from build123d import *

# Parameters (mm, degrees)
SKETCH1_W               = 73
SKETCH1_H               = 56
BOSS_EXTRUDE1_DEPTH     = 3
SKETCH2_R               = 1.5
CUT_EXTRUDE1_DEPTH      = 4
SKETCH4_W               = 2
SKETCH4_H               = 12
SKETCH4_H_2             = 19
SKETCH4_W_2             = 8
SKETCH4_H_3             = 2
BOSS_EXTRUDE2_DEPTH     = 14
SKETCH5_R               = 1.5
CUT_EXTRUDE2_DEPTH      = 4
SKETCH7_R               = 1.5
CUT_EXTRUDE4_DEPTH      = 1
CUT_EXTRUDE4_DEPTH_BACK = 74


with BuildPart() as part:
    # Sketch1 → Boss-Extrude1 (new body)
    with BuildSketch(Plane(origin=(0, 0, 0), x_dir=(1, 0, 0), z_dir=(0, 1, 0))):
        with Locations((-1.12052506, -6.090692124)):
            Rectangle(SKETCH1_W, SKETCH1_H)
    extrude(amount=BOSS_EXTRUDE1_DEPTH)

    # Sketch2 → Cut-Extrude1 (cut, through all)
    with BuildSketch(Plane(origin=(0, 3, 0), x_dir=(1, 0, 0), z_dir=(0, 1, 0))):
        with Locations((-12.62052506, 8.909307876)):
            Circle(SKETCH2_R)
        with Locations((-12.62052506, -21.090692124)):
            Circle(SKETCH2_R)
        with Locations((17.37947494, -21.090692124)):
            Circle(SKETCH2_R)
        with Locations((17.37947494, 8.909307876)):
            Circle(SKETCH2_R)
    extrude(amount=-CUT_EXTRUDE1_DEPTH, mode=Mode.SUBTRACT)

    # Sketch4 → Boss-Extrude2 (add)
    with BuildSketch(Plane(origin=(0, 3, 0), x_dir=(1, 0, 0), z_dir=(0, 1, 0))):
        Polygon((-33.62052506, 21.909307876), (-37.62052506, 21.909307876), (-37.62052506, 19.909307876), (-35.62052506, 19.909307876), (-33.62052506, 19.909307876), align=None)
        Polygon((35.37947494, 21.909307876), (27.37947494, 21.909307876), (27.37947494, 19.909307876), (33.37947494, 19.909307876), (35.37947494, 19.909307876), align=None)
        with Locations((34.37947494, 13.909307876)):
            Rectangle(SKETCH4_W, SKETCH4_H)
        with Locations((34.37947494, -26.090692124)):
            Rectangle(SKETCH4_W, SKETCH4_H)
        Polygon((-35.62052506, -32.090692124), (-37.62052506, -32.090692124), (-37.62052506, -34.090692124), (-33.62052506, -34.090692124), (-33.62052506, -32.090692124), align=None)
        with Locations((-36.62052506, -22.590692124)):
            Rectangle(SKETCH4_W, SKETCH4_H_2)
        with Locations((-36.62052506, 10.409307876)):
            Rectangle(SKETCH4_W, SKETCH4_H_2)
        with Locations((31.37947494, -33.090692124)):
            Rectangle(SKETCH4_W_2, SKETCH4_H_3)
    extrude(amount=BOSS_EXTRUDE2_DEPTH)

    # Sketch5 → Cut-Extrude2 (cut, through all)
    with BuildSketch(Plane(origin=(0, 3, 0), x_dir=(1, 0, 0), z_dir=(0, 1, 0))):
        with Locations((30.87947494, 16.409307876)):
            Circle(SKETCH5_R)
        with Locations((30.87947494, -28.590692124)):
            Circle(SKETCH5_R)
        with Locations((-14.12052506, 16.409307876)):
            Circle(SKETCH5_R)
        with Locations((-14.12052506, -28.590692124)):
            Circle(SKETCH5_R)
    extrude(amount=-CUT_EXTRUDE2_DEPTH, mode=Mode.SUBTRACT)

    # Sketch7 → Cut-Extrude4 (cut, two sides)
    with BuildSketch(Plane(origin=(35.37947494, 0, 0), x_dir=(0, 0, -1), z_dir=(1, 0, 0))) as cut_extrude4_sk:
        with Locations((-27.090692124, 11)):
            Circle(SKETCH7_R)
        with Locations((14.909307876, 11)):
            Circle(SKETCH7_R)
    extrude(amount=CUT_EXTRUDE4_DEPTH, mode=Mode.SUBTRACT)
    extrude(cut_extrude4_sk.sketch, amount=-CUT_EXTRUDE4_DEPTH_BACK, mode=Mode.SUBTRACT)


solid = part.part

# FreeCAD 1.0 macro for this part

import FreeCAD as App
import Part
import Sketcher
from FreeCAD import Vector


def add_polygon(sketch, points):
    """Adds a closed chain of lines whose ends are joined by coincident constraints."""
    first, n = sketch.GeometryCount, len(points)
    for a, b in zip(points, points[1:] + points[:1]):
        sketch.addGeometry(Part.LineSegment(App.Vector(*a, 0), App.Vector(*b, 0)), False)
    for i in range(n):
        sketch.addConstraint(Sketcher.Constraint("Coincident", first + i, 2, first + (i + 1) % n, 1))

doc = App.newDocument("Part")
body = doc.addObject("PartDesign::Body", "Body")

# Sketch on XZ plane
sketch1 = body.newObject("Sketcher::SketchObject", "Sketch")
sketch1.AttachmentSupport = (doc.getObject("XZ_Plane"), [""])
sketch1.MapMode = "FlatFace"
add_polygon(sketch1, [(-38, -22), (-38, 34), (35, 34), (35, -22)])  # lines 0-3
sketch1.addConstraint(Sketcher.Constraint("Vertical", 0))
sketch1.addConstraint(Sketcher.Constraint("Horizontal", 1))
sketch1.addConstraint(Sketcher.Constraint("Vertical", 2))
sketch1.addConstraint(Sketcher.Constraint("Horizontal", 3))
sketch1.addConstraint(Sketcher.Constraint("DistanceX", 1, 1, 1, 2, 73.0))
sketch1.addConstraint(Sketcher.Constraint("DistanceY", 0, 1, 0, 2, 56.0))
sketch1.addConstraint(Sketcher.Constraint("DistanceX", 0, 2, -1, 1, 37.620525))
sketch1.addConstraint(Sketcher.Constraint("DistanceY", -1, 1, 0, 2, 34.090692))
pad1 = body.newObject("PartDesign::Pad", "Pad")
pad1.Profile = sketch1
pad1.Length = 3
pad1.Reversed = True

# Sketch on XZ plane
sketch2 = body.newObject("Sketcher::SketchObject", "Sketch001")
sketch2.AttachmentSupport = (doc.getObject("XZ_Plane"), [""])
sketch2.MapMode = "FlatFace"
sketch2.AttachmentOffset = App.Placement(Vector(0, 0, -3), App.Rotation())
sketch2.addGeometry(Part.Circle(Vector(-12.6, -8.9, 0), Vector(0, 0, 1), 1.5), False)
sketch2.addGeometry(Part.Circle(Vector(-12.6, 21.1, 0), Vector(0, 0, 1), 1.5), False)
sketch2.addGeometry(Part.Circle(Vector(17.4, 21.1, 0), Vector(0, 0, 1), 1.5), False)
sketch2.addGeometry(Part.Circle(Vector(17.4, -8.9, 0), Vector(0, 0, 1), 1.5), False)
sketch2.addConstraint(Sketcher.Constraint("Equal", 0, 1))
sketch2.addConstraint(Sketcher.Constraint("Equal", 1, 2))
sketch2.addConstraint(Sketcher.Constraint("Equal", 2, 3))
sketch2.addConstraint(Sketcher.Constraint("Horizontal", 1, 3, 2, 3))
sketch2.addConstraint(Sketcher.Constraint("Horizontal", 0, 3, 3, 3))
sketch2.addConstraint(Sketcher.Constraint("Vertical", 0, 3, 1, 3))
sketch2.addConstraint(Sketcher.Constraint("Vertical", 2, 3, 3, 3))
sketch2.addConstraint(Sketcher.Constraint("Diameter", 0, 3.0))
sketch2.addConstraint(Sketcher.Constraint("DistanceY", 0, 3, 1, 3, 30.0))
sketch2.addConstraint(Sketcher.Constraint("DistanceX", 1, 3, 2, 3, 30.0))
sketch2.addConstraint(Sketcher.Constraint("DistanceX", 0, 3, -1, 1, 12.620525))
sketch2.addConstraint(Sketcher.Constraint("DistanceY", 0, 3, -1, 1, 8.909308))
pocket1 = body.newObject("PartDesign::Pocket", "Pocket")
pocket1.Profile = sketch2
pocket1.Type = "ThroughAll"
pocket1.Reversed = True

# Sketch on XZ plane
sketch3 = body.newObject("Sketcher::SketchObject", "Sketch002")
sketch3.AttachmentSupport = (doc.getObject("XZ_Plane"), [""])
sketch3.MapMode = "FlatFace"
sketch3.AttachmentOffset = App.Placement(Vector(0, 0, -3), App.Rotation())
add_polygon(sketch3, [(-33.6, -21.9), (-37.6, -21.9), (-37.6, -0.9), (-35.6, -0.9), (-35.6, -19.9), (-33.6, -19.9)])  # lines 0-5
add_polygon(sketch3, [(35.4, -21.9), (27.4, -21.9), (27.4, -19.9), (33.4, -19.9), (33.4, -7.9), (35.4, -7.9)])  # lines 6-11
add_polygon(sketch3, [(33.4, 20.1), (33.4, 32.1), (27.4, 32.1), (27.4, 34.1), (35.4, 34.1), (35.4, 20.1)])  # lines 12-17
add_polygon(sketch3, [(-37.6, 34.1), (-33.6, 34.1), (-33.6, 32.1), (-35.6, 32.1), (-35.6, 13.1), (-37.6, 13.1)])  # lines 18-23
sketch3.addConstraint(Sketcher.Constraint("Horizontal", 0))
sketch3.addConstraint(Sketcher.Constraint("Vertical", 1))
sketch3.addConstraint(Sketcher.Constraint("Horizontal", 2))
sketch3.addConstraint(Sketcher.Constraint("Vertical", 3))
sketch3.addConstraint(Sketcher.Constraint("Horizontal", 4))
sketch3.addConstraint(Sketcher.Constraint("Vertical", 5))
sketch3.addConstraint(Sketcher.Constraint("Horizontal", 6))
sketch3.addConstraint(Sketcher.Constraint("Vertical", 7))
sketch3.addConstraint(Sketcher.Constraint("Horizontal", 8))
sketch3.addConstraint(Sketcher.Constraint("Vertical", 9))
sketch3.addConstraint(Sketcher.Constraint("Horizontal", 10))
sketch3.addConstraint(Sketcher.Constraint("Vertical", 11))
sketch3.addConstraint(Sketcher.Constraint("Vertical", 12))
sketch3.addConstraint(Sketcher.Constraint("Horizontal", 13))
sketch3.addConstraint(Sketcher.Constraint("Vertical", 14))
sketch3.addConstraint(Sketcher.Constraint("Horizontal", 15))
sketch3.addConstraint(Sketcher.Constraint("Vertical", 16))
sketch3.addConstraint(Sketcher.Constraint("Horizontal", 17))
sketch3.addConstraint(Sketcher.Constraint("Horizontal", 18))
sketch3.addConstraint(Sketcher.Constraint("Vertical", 19))
sketch3.addConstraint(Sketcher.Constraint("Horizontal", 20))
sketch3.addConstraint(Sketcher.Constraint("Vertical", 21))
sketch3.addConstraint(Sketcher.Constraint("Horizontal", 22))
sketch3.addConstraint(Sketcher.Constraint("Vertical", 23))
sketch3.addConstraint(Sketcher.Constraint("Horizontal", 5, 2, 6, 2))
sketch3.addConstraint(Sketcher.Constraint("Horizontal", 4, 2, 7, 2))
sketch3.addConstraint(Sketcher.Constraint("Horizontal", 15, 2, 18, 2))
sketch3.addConstraint(Sketcher.Constraint("Horizontal", 13, 2, 19, 2))
sketch3.addConstraint(Sketcher.Constraint("Vertical", 9, 2, 12, 2))
sketch3.addConstraint(Sketcher.Constraint("Vertical", 7, 2, 13, 2))
sketch3.addConstraint(Sketcher.Constraint("Vertical", 11, 2, 15, 2))
sketch3.addConstraint(Sketcher.Constraint("Vertical", 5, 2, 18, 2))
sketch3.addConstraint(Sketcher.Constraint("Vertical", 3, 2, 20, 2))
sketch3.addConstraint(Sketcher.Constraint("Vertical", 1, 2, 22, 2))
sketch3.addConstraint(Sketcher.Constraint("Equal", 2, 4))
sketch3.addConstraint(Sketcher.Constraint("Equal", 4, 10))
sketch3.addConstraint(Sketcher.Constraint("Equal", 22, 5))
sketch3.addConstraint(Sketcher.Constraint("Equal", 9, 12))
sketch3.addConstraint(Sketcher.Constraint("Equal", 7, 14))
sketch3.addConstraint(Sketcher.Constraint("Equal", 3, 21))
sketch3.addConstraint(Sketcher.Constraint("DistanceX", 0, 2, 0, 1, 4.0))
sketch3.addConstraint(Sketcher.Constraint("DistanceX", 6, 2, 6, 1, 8.0))
sketch3.addConstraint(Sketcher.Constraint("DistanceY", 1, 1, 1, 2, 21.0))
sketch3.addConstraint(Sketcher.Constraint("DistanceY", 9, 1, 9, 2, 12.0))
sketch3.addConstraint(Sketcher.Constraint("DistanceX", 5, 2, 6, 2, 61.0))
sketch3.addConstraint(Sketcher.Constraint("DistanceY", 9, 2, 12, 2, 40.0))
sketch3.addConstraint(Sketcher.Constraint("DistanceX", 0, 2, -1, 1, 37.620525))
sketch3.addConstraint(Sketcher.Constraint("DistanceY", 0, 2, -1, 1, 21.909308))
pad2 = body.newObject("PartDesign::Pad", "Pad001")
pad2.Profile = sketch3
pad2.Length = 14
pad2.Reversed = True

# Sketch on XZ plane
sketch4 = body.newObject("Sketcher::SketchObject", "Sketch003")
sketch4.AttachmentSupport = (doc.getObject("XZ_Plane"), [""])
sketch4.MapMode = "FlatFace"
sketch4.AttachmentOffset = App.Placement(Vector(0, 0, -3), App.Rotation())
sketch4.addGeometry(Part.Circle(Vector(30.9, -16.4, 0), Vector(0, 0, 1), 1.5), False)
sketch4.addGeometry(Part.Circle(Vector(30.9, 28.6, 0), Vector(0, 0, 1), 1.5), False)
sketch4.addGeometry(Part.Circle(Vector(-14.1, -16.4, 0), Vector(0, 0, 1), 1.5), False)
sketch4.addGeometry(Part.Circle(Vector(-14.1, 28.6, 0), Vector(0, 0, 1), 1.5), False)
sketch4.addConstraint(Sketcher.Constraint("Equal", 0, 1))
sketch4.addConstraint(Sketcher.Constraint("Equal", 1, 2))
sketch4.addConstraint(Sketcher.Constraint("Equal", 2, 3))
sketch4.addConstraint(Sketcher.Constraint("Horizontal", 0, 3, 2, 3))
sketch4.addConstraint(Sketcher.Constraint("Horizontal", 1, 3, 3, 3))
sketch4.addConstraint(Sketcher.Constraint("Vertical", 0, 3, 1, 3))
sketch4.addConstraint(Sketcher.Constraint("Vertical", 2, 3, 3, 3))
sketch4.addConstraint(Sketcher.Constraint("Diameter", 0, 3.0))
sketch4.addConstraint(Sketcher.Constraint("DistanceY", 0, 3, 1, 3, 45.0))
sketch4.addConstraint(Sketcher.Constraint("DistanceX", 2, 3, 0, 3, 45.0))
sketch4.addConstraint(Sketcher.Constraint("DistanceX", -1, 1, 0, 3, 30.879475))
sketch4.addConstraint(Sketcher.Constraint("DistanceY", 0, 3, -1, 1, 16.409308))
pocket2 = body.newObject("PartDesign::Pocket", "Pocket001")
pocket2.Profile = sketch4
pocket2.Type = "ThroughAll"
pocket2.Reversed = True

# Sketch on YZ plane
sketch5 = body.newObject("Sketcher::SketchObject", "Sketch004")
sketch5.AttachmentSupport = (doc.getObject("YZ_Plane"), [""])
sketch5.MapMode = "FlatFace"
sketch5.AttachmentOffset = App.Placement(Vector(0, 0, 35.379475), App.Rotation())
sketch5.addGeometry(Part.Circle(Vector(11, 27.1, 0), Vector(0, 0, 1), 1.5), False)
sketch5.addGeometry(Part.Circle(Vector(11, -14.9, 0), Vector(0, 0, 1), 1.5), False)
sketch5.addConstraint(Sketcher.Constraint("Equal", 0, 1))
sketch5.addConstraint(Sketcher.Constraint("Vertical", 0, 3, 1, 3))
sketch5.addConstraint(Sketcher.Constraint("Diameter", 0, 3.0))
sketch5.addConstraint(Sketcher.Constraint("DistanceX", -1, 1, 0, 3, 11.0))
sketch5.addConstraint(Sketcher.Constraint("DistanceY", 1, 3, 0, 3, 42.0))
sketch5.addConstraint(Sketcher.Constraint("DistanceY", -1, 1, 0, 3, 27.090692))
pocket3 = body.newObject("PartDesign::Pocket", "Pocket002")
pocket3.Profile = sketch5
pocket3.Type = "ThroughAll"
pocket3.Midplane = True

doc.recompute()
